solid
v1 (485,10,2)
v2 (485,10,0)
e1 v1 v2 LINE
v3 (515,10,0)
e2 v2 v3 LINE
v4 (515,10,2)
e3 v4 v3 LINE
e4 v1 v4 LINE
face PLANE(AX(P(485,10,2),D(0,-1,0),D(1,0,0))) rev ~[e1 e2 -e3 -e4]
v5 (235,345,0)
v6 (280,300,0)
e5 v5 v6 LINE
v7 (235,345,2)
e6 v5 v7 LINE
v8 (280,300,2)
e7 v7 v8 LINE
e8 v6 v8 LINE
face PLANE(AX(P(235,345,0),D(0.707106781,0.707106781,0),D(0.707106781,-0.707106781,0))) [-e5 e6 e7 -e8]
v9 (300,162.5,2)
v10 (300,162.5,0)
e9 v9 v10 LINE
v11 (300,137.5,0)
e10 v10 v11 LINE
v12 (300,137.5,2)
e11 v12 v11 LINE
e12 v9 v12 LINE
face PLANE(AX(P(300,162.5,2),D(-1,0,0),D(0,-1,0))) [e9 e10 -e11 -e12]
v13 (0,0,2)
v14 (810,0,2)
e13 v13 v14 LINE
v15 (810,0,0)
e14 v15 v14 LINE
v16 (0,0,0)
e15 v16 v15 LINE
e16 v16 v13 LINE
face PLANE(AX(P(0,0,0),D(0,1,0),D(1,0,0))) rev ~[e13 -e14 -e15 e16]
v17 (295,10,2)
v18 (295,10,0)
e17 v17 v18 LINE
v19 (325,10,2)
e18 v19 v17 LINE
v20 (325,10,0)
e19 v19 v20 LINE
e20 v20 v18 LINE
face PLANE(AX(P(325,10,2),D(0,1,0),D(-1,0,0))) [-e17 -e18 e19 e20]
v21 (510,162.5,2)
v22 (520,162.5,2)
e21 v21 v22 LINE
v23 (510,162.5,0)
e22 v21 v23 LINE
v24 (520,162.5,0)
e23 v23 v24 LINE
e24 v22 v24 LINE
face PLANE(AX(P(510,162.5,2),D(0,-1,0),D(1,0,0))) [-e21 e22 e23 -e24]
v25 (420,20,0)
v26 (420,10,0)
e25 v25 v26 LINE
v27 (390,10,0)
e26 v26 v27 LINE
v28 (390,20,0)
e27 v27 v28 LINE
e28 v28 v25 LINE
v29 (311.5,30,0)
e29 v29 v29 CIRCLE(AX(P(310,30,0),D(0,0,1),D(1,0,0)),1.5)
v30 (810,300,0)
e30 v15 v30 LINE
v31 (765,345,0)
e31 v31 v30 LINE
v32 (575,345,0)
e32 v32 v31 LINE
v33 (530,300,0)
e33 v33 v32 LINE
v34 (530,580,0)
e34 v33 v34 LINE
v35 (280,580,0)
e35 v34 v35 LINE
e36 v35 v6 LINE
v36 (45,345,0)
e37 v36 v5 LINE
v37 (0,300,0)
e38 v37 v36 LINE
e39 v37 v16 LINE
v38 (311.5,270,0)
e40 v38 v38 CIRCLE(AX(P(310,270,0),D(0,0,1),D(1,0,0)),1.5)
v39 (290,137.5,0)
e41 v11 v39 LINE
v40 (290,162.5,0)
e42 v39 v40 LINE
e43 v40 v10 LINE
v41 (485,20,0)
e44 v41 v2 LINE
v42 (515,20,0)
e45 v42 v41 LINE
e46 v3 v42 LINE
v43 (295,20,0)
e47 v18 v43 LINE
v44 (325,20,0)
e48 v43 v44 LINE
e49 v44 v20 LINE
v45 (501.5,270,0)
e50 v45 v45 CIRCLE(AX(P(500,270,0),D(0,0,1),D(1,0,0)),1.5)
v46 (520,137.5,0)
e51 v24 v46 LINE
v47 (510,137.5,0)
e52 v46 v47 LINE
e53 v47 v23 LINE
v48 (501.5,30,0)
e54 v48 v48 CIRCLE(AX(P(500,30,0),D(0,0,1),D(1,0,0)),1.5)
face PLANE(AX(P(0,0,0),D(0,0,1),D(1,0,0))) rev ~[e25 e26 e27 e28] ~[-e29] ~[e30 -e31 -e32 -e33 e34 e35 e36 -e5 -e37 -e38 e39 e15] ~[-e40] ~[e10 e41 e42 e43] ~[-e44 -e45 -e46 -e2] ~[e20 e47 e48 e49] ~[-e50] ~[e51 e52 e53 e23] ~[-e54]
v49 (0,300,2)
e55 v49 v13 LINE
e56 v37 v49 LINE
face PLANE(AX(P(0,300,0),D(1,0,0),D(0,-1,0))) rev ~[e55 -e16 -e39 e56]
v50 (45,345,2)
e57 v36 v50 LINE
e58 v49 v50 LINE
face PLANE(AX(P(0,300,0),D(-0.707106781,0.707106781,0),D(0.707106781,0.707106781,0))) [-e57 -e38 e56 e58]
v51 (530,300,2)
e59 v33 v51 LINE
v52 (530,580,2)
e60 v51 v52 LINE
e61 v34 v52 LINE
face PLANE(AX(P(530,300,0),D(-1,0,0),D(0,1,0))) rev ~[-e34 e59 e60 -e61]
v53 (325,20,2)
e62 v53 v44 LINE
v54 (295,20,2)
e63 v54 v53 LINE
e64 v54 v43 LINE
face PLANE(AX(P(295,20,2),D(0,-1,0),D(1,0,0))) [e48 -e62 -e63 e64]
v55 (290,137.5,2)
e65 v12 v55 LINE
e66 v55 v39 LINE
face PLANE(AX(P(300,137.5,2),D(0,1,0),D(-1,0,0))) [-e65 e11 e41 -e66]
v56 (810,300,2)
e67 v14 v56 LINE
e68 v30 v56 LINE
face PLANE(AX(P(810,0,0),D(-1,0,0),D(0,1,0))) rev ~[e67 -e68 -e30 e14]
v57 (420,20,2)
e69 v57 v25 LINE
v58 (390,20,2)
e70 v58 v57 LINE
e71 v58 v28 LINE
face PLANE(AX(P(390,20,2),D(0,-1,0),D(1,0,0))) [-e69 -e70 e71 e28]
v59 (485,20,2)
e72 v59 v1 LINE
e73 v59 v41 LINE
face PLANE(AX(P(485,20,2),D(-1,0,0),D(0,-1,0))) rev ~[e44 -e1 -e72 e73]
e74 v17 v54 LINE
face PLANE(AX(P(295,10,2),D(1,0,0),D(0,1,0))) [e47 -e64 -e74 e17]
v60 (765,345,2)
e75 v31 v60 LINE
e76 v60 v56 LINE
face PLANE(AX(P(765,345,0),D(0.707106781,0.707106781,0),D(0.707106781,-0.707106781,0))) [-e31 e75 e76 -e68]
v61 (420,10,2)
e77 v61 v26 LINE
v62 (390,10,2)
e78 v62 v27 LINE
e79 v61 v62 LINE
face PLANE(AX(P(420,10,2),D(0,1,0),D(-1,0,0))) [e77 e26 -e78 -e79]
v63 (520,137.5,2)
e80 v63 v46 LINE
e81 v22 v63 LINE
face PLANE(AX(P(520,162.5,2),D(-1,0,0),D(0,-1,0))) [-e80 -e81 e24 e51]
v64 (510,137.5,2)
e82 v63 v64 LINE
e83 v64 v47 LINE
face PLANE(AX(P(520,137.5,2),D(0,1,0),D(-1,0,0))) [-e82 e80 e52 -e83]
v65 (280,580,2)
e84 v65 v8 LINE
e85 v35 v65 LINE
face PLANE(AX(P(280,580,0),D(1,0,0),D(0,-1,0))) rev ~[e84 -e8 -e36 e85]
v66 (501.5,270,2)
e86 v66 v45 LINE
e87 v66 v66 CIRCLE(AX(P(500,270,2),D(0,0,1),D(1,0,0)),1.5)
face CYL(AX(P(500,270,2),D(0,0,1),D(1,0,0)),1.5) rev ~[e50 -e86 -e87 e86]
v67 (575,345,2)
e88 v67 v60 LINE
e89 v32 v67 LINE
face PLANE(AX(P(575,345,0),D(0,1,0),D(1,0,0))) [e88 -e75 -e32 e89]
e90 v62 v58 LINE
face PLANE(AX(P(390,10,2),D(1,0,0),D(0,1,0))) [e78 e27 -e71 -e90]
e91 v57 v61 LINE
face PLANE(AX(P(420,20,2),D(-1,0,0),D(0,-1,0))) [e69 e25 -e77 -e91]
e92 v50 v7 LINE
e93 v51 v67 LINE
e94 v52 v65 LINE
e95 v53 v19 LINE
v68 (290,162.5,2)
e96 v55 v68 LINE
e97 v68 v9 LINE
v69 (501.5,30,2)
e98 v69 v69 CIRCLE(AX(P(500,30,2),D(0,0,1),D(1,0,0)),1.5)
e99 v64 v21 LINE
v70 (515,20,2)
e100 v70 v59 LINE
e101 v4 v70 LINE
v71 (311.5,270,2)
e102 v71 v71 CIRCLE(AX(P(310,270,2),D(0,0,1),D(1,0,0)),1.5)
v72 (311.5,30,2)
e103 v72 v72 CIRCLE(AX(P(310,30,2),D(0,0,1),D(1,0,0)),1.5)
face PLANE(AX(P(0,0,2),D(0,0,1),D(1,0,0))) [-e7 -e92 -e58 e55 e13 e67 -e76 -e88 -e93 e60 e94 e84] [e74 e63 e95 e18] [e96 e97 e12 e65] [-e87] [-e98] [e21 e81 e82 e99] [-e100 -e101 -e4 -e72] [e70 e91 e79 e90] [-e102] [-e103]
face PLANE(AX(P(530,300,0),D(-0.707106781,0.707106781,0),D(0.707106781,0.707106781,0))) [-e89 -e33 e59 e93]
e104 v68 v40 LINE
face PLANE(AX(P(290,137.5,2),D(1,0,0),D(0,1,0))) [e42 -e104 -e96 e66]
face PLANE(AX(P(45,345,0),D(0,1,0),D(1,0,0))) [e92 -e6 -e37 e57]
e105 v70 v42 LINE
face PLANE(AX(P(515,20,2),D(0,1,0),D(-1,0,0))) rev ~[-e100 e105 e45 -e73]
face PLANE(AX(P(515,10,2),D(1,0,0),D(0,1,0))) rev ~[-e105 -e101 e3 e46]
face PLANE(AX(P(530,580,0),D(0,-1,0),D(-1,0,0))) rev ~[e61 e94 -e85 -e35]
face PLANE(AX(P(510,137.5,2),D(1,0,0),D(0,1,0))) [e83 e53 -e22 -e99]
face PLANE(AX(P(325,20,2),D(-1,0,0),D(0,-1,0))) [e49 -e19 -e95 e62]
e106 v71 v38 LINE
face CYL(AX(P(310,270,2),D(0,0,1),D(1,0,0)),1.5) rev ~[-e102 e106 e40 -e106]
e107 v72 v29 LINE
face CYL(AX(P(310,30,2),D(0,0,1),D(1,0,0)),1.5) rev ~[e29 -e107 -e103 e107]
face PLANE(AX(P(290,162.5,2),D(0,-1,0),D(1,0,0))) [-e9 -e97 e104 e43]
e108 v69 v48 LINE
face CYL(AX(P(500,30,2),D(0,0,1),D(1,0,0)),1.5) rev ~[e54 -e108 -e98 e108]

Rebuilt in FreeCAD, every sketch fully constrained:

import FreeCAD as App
import Part
import Sketcher

V = App.Vector
Q = App.Units.Quantity


def add_polygon(sketch, points):
    """Adds a closed chain of lines whose ends are joined by coincident constraints."""
    first, n = sketch.GeometryCount, len(points)
    for a, b in zip(points, points[1:] + points[:1]):
        sketch.addGeometry(Part.LineSegment(App.Vector(*a, 0), App.Vector(*b, 0)), False)
    for i in range(n):
        sketch.addConstraint(Sketcher.Constraint("Coincident", first + i, 2, first + (i + 1) % n, 1))

doc = App.newDocument("Part")
body = doc.addObject("PartDesign::Body", "Body")

# Sketch on XY plane
sketch1 = body.newObject("Sketcher::SketchObject", "Sketch")
sketch1.AttachmentSupport = (doc.getObject("XY_Plane"), [""])
sketch1.MapMode = "FlatFace"
add_polygon(sketch1, [(0, 300), (0, 0), (810, 0), (810, 300), (765, 345), (575, 345), (530, 300), (530, 580), (280, 580), (280, 300), (235, 345), (45, 345)])  # lines 0-11
sketch1.addConstraint([
    Sketcher.Constraint("Vertical", 0),
    Sketcher.Constraint("Horizontal", 1),
    Sketcher.Constraint("Vertical", 2),
    Sketcher.Constraint("Horizontal", 4),
    Sketcher.Constraint("Vertical", 6),
    Sketcher.Constraint("Horizontal", 7),
    Sketcher.Constraint("Vertical", 8),
    Sketcher.Constraint("Horizontal", 10),
    Sketcher.Constraint("Coincident", 0, 2, -1, 1),
    Sketcher.Constraint("Perpendicular", 3, 5),
    Sketcher.Constraint("Perpendicular", 5, 9),
    Sketcher.Constraint("Perpendicular", 9, 11),
    Sketcher.Constraint("Horizontal", 2, 2, 5, 2),
    Sketcher.Constraint("Horizontal", 5, 2, 8, 2),
    Sketcher.Constraint("Horizontal", 4, 2, 9, 2),
    Sketcher.Constraint("Horizontal", 8, 2, 11, 2),
    Sketcher.Constraint("Equal", 4, 10),
    Sketcher.Constraint("Equal", 3, 5),
    Sketcher.Constraint("DistanceX", 1, 1, 1, 2, Q("810 mm")),
    Sketcher.Constraint("DistanceX", 7, 2, 7, 1, Q("250 mm")),
    Sketcher.Constraint("DistanceY", 0, 2, 0, 1, Q("300 mm")),
    Sketcher.Constraint("DistanceY", 6, 1, 6, 2, Q("280 mm")),
    Sketcher.Constraint("DistanceX", -1, 1, 10, 2, Q("45 mm")),
])
pad1 = body.newObject("PartDesign::Pad", "Pad")
pad1.Profile = sketch1
pad1.Length = 2

# Sketch on XY plane
sketch2 = body.newObject("Sketcher::SketchObject", "Sketch001")
sketch2.AttachmentSupport = (doc.getObject("XY_Plane"), [""])
sketch2.MapMode = "FlatFace"
sketch2.AttachmentOffset = App.Placement(V(0, 0, 2), App.Rotation())
sketch2.addGeometry(Part.Circle(V(310, 270, 0), V(0, 0, 1), 1.5), False)  # 0
sketch2.addGeometry(Part.Circle(V(500, 270, 0), V(0, 0, 1), 1.5), False)  # 1
sketch2.addGeometry(Part.Circle(V(310, 30, 0), V(0, 0, 1), 1.5), False)  # 2
sketch2.addGeometry(Part.Circle(V(500, 30, 0), V(0, 0, 1), 1.5), False)  # 3
add_polygon(sketch2, [(300, 162.5), (290, 162.5), (290, 137.5), (300, 137.5)])  # lines 4-7
add_polygon(sketch2, [(520, 162.5), (510, 162.5), (510, 137.5), (520, 137.5)])  # lines 8-11
add_polygon(sketch2, [(420, 20), (390, 20), (390, 10), (420, 10)])  # lines 12-15
add_polygon(sketch2, [(295, 10), (325, 10), (325, 20), (295, 20)])  # lines 16-19
add_polygon(sketch2, [(485, 20), (485, 10), (515, 10), (515, 20)])  # lines 20-23
sketch2.addConstraint([
    Sketcher.Constraint("Horizontal", 4),
    Sketcher.Constraint("Vertical", 5),
    Sketcher.Constraint("Horizontal", 6),
    Sketcher.Constraint("Vertical", 7),
    Sketcher.Constraint("Horizontal", 8),
    Sketcher.Constraint("Vertical", 9),
    Sketcher.Constraint("Horizontal", 10),
    Sketcher.Constraint("Vertical", 11),
    Sketcher.Constraint("Horizontal", 12),
    Sketcher.Constraint("Vertical", 13),
    Sketcher.Constraint("Horizontal", 14),
    Sketcher.Constraint("Vertical", 15),
    Sketcher.Constraint("Horizontal", 16),
    Sketcher.Constraint("Vertical", 17),
    Sketcher.Constraint("Horizontal", 18),
    Sketcher.Constraint("Vertical", 19),
    Sketcher.Constraint("Vertical", 20),
    Sketcher.Constraint("Horizontal", 21),
    Sketcher.Constraint("Vertical", 22),
    Sketcher.Constraint("Horizontal", 23),
    Sketcher.Constraint("Equal", 0, 1),
    Sketcher.Constraint("Equal", 1, 2),
    Sketcher.Constraint("Equal", 2, 3),
    Sketcher.Constraint("Horizontal", 0, 3, 1, 3),
    Sketcher.Constraint("Horizontal", 2, 3, 3, 3),
    Sketcher.Constraint("Horizontal", 7, 2, 8, 2),
    Sketcher.Constraint("Horizontal", 6, 2, 9, 2),
    Sketcher.Constraint("Horizontal", 14, 2, 16, 2),
    Sketcher.Constraint("Horizontal", 15, 2, 17, 2),
    Sketcher.Constraint("Horizontal", 19, 2, 20, 2),
    Sketcher.Constraint("Horizontal", 18, 2, 22, 2),
    Sketcher.Constraint("Vertical", 0, 3, 2, 3),
    Sketcher.Constraint("Vertical", 1, 3, 3, 3),
    Sketcher.Constraint("Equal", 6, 8),
    Sketcher.Constraint("Equal", 14, 16),
    Sketcher.Constraint("Equal", 18, 21),
    Sketcher.Constraint("Equal", 10, 13),
    Sketcher.Constraint("Diameter", 0, Q("3 mm")),
    Sketcher.Constraint("DistanceX", 4, 2, 4, 1, Q("10 mm")),
    Sketcher.Constraint("DistanceX", 12, 2, 12, 1, Q("30 mm")),
    Sketcher.Constraint("DistanceY", 5, 2, 5, 1, Q("25 mm")),
    Sketcher.Constraint("DistanceY", -1, 1, 2, 3, Q("30 mm")),
    Sketcher.Constraint("DistanceY", -1, 1, 13, 2, Q("10 mm")),
    Sketcher.Constraint("DistanceX", 6, 2, 2, 3, Q("10 mm")),
    Sketcher.Constraint("DistanceX", 1, 3, 8, 2, Q("10 mm")),
    Sketcher.Constraint("DistanceX", 2, 3, 16, 2, Q("15 mm")),
    Sketcher.Constraint("DistanceX", 20, 2, 3, 3, Q("15 mm")),
    Sketcher.Constraint("DistanceX", -1, 1, 0, 3, Q("310 mm")),
    Sketcher.Constraint("DistanceY", -1, 1, 0, 3, Q("270 mm")),
    Sketcher.Constraint("DistanceX", -1, 1, 1, 3, Q("500 mm")),
    Sketcher.Constraint("DistanceX", -1, 1, 12, 2, Q("390 mm")),
    Sketcher.Constraint("DistanceY", -1, 1, 4, 2, Q("162.5 mm")),
])
pocket1 = body.newObject("PartDesign::Pocket", "Pocket")
pocket1.Profile = sketch2
pocket1.Type = "ThroughAll"

doc.recompute()
